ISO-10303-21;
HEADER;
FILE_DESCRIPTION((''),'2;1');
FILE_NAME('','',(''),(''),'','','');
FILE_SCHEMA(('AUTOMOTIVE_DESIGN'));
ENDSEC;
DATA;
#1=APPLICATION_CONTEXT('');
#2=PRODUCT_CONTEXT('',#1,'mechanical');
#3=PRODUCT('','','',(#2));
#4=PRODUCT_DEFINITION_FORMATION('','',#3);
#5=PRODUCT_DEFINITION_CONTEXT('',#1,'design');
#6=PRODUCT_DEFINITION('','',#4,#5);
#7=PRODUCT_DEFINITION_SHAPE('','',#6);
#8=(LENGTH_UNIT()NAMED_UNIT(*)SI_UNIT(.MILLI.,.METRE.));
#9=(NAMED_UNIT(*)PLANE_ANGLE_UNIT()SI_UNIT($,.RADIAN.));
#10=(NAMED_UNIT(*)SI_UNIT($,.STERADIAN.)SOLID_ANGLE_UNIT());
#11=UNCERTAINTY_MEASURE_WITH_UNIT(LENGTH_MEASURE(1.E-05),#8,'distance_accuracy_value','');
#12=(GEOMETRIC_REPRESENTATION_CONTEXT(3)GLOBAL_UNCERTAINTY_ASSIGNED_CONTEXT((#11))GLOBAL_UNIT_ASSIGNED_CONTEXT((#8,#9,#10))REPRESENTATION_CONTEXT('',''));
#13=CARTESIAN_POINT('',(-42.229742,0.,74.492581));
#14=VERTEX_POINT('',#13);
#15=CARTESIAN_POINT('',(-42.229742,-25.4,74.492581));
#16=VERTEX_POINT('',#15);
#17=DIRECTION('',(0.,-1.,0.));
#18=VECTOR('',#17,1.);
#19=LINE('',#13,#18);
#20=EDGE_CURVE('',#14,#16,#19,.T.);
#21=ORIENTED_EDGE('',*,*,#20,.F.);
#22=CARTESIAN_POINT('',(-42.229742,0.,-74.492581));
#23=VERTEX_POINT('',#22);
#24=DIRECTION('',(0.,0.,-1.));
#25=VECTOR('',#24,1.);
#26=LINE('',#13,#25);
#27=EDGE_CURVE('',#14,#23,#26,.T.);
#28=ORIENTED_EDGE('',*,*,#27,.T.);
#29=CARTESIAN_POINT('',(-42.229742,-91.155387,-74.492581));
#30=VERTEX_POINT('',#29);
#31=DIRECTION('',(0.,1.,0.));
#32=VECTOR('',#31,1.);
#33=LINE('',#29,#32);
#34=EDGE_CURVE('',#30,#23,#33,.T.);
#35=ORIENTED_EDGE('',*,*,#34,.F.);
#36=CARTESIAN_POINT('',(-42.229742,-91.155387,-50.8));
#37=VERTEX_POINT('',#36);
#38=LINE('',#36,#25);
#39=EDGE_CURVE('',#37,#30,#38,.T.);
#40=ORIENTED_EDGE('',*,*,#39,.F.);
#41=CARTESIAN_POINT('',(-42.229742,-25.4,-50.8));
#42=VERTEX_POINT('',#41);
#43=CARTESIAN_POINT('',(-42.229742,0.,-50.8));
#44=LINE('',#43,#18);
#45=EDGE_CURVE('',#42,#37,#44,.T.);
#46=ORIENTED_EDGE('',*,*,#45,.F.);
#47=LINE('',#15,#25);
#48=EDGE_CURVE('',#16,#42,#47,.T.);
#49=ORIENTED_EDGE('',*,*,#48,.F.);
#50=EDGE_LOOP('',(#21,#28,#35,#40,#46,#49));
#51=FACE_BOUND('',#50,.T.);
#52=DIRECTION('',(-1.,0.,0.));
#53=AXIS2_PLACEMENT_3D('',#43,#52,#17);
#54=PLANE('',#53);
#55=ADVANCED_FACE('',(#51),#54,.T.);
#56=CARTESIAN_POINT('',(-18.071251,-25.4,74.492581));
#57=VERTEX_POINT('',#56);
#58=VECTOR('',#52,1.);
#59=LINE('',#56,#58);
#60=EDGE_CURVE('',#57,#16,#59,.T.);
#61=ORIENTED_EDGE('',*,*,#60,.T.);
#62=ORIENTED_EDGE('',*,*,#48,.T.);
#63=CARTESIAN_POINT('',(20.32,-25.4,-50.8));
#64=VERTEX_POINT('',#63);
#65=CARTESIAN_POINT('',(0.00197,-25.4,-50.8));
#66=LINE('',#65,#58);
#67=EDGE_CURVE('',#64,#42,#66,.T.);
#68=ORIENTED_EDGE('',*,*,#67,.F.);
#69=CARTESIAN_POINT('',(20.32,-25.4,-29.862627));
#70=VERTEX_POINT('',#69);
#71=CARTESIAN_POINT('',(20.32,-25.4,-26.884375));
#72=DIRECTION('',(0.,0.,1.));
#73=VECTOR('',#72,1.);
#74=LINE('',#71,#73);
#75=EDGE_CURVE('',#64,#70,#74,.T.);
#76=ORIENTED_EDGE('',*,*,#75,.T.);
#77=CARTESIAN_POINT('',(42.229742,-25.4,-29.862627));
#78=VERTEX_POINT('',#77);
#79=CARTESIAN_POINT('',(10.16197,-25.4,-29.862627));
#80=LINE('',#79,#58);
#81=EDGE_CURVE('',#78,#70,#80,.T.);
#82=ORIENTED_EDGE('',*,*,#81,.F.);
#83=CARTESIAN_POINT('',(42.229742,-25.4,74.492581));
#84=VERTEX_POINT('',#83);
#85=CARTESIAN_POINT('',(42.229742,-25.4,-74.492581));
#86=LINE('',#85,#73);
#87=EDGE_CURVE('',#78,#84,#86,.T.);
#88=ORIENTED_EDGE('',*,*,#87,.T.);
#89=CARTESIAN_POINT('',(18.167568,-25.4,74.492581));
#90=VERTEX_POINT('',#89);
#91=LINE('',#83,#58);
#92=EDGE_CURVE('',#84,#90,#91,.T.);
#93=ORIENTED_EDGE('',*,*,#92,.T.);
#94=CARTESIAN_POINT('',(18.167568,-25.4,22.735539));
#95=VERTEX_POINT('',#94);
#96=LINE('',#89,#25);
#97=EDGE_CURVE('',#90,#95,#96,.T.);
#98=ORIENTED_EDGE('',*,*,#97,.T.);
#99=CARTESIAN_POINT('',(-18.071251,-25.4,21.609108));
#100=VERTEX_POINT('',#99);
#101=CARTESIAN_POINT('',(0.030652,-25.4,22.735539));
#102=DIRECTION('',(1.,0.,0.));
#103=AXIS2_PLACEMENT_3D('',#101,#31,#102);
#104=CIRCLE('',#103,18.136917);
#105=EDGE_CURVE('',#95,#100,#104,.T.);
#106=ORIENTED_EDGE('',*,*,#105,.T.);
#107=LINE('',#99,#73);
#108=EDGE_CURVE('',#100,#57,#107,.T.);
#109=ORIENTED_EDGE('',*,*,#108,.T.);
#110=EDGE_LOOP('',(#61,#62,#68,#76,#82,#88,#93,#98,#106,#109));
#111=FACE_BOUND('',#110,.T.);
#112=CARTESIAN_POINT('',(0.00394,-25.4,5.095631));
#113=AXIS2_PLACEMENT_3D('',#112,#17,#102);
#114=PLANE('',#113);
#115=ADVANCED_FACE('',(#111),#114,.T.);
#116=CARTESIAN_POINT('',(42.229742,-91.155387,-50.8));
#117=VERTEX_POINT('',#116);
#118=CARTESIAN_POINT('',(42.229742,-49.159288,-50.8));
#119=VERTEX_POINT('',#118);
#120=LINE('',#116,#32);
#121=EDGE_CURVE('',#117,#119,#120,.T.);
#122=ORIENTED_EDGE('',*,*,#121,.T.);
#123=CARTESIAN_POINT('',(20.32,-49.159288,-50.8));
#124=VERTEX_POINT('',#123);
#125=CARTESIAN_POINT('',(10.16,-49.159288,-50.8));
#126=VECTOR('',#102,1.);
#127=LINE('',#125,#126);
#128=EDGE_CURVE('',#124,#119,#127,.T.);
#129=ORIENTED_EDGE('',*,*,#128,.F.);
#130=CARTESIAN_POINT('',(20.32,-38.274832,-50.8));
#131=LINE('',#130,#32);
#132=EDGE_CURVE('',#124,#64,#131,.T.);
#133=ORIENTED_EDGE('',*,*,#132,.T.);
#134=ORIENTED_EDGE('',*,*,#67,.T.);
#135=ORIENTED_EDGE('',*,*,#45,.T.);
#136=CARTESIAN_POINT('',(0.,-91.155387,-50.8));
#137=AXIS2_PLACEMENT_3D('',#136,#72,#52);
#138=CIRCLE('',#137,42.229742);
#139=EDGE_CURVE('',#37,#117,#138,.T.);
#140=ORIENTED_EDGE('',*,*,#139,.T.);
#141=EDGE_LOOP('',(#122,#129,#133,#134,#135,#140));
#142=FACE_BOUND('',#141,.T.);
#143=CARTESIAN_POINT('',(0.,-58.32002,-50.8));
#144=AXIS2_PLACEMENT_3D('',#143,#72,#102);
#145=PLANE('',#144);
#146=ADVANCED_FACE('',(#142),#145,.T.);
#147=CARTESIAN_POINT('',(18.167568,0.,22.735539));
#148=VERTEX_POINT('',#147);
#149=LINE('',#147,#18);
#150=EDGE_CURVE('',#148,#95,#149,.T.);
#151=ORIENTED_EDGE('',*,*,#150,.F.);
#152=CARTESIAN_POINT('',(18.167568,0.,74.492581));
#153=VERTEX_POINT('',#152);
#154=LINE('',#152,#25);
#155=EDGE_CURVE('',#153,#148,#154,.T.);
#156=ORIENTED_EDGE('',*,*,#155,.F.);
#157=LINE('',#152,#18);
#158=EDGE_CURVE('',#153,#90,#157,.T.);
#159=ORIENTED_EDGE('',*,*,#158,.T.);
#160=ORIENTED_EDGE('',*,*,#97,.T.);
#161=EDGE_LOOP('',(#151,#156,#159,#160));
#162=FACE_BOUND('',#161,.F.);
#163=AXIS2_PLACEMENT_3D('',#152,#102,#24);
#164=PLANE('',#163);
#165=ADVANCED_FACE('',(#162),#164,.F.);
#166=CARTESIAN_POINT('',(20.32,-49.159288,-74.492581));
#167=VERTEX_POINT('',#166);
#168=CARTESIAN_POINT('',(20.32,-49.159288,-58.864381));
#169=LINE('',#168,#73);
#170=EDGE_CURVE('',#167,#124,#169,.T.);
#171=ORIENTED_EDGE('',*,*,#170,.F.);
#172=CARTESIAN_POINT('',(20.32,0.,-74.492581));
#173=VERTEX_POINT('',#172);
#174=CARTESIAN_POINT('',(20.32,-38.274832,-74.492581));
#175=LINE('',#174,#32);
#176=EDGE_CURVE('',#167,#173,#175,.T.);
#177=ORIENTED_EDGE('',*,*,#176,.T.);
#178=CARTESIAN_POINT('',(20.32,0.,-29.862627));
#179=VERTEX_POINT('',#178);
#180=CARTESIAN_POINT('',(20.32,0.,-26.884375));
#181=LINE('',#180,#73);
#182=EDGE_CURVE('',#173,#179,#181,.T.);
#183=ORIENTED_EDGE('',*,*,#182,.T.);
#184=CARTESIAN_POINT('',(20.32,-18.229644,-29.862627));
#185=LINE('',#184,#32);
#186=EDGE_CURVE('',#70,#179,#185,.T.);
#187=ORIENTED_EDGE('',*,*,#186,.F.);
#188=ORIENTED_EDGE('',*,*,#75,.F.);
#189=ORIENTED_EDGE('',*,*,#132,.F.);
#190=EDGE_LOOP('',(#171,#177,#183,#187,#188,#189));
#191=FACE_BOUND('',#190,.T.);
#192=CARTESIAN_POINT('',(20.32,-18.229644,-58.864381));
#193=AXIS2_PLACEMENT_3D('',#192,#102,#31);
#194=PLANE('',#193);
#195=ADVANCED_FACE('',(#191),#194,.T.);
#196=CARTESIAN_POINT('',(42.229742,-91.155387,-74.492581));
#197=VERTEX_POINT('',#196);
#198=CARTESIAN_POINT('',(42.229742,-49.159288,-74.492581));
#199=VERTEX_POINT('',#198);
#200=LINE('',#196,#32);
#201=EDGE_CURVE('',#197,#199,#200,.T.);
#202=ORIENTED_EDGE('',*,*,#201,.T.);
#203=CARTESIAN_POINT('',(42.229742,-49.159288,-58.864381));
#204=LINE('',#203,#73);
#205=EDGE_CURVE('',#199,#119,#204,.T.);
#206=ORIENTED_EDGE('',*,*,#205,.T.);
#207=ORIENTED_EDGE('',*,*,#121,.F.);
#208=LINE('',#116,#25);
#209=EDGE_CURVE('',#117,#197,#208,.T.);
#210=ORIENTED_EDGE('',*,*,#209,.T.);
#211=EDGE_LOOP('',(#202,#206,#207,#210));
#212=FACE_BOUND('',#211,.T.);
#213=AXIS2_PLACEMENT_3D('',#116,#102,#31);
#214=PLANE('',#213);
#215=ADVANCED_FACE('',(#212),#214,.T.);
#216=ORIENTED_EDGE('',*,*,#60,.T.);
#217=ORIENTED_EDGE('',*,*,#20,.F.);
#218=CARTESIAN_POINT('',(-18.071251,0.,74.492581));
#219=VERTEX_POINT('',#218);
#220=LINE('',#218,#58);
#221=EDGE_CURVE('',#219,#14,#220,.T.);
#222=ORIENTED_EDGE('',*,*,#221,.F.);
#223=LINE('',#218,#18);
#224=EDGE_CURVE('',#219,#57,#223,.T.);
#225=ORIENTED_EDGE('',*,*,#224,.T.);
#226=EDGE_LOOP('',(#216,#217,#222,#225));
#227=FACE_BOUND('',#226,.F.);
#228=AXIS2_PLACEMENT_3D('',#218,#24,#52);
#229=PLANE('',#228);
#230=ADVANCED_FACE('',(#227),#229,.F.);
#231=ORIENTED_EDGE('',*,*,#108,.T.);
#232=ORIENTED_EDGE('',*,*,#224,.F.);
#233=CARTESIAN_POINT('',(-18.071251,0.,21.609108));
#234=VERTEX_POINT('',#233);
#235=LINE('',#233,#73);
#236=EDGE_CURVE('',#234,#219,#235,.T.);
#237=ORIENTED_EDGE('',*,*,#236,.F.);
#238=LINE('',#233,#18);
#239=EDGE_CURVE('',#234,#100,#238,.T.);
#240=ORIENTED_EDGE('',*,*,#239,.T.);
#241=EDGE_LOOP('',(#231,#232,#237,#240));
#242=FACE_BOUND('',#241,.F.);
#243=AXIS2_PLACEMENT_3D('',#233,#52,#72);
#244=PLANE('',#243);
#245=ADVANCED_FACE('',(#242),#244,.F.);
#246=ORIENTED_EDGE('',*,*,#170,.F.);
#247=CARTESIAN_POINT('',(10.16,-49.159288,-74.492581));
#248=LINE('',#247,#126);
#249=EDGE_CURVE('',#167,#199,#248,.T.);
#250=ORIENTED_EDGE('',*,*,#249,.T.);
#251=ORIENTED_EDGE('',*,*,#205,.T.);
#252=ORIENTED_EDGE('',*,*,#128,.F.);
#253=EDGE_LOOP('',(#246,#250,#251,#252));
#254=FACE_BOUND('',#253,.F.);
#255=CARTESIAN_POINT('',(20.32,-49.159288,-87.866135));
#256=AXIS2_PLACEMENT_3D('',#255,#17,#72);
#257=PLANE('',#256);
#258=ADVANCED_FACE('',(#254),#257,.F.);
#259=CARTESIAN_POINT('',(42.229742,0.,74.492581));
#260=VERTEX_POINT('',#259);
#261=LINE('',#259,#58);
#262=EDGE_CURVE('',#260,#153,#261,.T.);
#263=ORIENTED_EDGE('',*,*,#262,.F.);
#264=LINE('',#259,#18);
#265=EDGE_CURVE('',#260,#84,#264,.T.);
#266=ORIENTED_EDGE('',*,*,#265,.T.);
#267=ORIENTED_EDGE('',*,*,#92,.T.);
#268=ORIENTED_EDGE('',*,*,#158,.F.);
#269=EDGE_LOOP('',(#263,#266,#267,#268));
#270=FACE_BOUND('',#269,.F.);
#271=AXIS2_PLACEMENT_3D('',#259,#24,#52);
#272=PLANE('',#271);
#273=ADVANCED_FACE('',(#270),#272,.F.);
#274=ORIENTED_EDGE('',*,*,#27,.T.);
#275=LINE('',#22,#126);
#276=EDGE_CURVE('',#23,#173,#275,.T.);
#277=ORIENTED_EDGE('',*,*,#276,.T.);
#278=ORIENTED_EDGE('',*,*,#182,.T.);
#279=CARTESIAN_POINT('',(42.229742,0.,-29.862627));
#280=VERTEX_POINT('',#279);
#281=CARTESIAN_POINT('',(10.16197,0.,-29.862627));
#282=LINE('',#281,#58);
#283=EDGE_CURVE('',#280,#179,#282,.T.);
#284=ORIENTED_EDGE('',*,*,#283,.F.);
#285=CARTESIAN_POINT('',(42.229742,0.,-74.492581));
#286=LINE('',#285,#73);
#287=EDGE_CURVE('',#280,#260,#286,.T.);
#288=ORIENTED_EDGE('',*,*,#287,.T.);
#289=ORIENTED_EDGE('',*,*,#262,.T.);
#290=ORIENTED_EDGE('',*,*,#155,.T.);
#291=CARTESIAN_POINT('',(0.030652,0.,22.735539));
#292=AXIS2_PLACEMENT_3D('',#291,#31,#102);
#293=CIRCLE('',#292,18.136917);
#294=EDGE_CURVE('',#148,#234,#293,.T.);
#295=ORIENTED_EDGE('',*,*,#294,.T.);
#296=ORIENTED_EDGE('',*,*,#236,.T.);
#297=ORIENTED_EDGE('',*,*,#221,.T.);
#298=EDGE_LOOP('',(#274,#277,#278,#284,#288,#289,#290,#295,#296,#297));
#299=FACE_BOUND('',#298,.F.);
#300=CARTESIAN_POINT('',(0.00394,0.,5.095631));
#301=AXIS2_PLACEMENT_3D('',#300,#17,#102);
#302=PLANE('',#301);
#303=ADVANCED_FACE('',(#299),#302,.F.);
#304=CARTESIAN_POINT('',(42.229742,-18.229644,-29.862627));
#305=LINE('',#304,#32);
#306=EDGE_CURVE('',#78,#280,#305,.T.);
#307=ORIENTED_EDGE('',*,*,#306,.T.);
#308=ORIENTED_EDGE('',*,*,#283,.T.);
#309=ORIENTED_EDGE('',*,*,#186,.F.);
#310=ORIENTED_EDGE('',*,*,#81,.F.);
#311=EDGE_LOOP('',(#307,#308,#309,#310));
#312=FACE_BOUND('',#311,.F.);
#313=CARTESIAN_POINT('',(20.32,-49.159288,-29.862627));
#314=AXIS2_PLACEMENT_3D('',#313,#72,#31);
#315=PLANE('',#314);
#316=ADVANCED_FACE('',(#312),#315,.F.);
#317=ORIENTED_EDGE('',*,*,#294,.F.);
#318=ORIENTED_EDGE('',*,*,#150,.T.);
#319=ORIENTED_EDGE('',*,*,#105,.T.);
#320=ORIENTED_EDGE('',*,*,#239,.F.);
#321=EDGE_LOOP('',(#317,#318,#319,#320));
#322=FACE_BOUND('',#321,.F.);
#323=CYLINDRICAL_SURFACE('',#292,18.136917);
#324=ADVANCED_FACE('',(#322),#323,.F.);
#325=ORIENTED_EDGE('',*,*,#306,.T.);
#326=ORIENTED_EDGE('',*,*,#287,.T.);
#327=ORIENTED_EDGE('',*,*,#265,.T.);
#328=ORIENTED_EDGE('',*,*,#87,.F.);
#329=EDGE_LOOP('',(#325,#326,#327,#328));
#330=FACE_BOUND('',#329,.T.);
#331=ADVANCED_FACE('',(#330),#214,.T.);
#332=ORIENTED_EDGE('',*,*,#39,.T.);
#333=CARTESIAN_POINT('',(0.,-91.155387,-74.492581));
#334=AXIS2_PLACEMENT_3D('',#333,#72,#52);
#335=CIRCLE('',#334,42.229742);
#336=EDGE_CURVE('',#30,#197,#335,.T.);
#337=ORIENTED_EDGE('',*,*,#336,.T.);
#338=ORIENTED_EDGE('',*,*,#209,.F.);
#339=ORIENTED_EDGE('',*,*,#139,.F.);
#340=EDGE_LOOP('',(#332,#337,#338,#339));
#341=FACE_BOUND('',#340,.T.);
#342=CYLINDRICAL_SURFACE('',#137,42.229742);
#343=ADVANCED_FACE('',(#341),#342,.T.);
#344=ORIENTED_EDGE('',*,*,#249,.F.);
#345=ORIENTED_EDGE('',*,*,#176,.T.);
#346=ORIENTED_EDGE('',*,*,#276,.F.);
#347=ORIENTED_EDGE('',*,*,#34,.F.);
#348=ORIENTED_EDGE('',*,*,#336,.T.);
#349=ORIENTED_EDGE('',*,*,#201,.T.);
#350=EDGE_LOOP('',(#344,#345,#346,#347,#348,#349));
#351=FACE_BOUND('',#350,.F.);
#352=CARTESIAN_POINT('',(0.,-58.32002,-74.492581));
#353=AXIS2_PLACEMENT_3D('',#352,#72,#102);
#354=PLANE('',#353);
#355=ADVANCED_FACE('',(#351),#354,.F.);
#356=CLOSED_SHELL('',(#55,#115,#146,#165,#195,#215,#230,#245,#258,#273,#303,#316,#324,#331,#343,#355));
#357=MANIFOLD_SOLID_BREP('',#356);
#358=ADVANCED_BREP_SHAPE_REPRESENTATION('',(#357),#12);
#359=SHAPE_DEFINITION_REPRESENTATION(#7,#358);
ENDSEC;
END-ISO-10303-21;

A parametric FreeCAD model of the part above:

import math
import FreeCAD as App
import Part
import Sketcher
Q = App.Units.Quantity


def add_polygon(sketch, points):
    """Adds a closed chain of lines whose ends are joined by coincident constraints."""
    first, n = sketch.GeometryCount, len(points)
    for a, b in zip(points, points[1:] + points[:1]):
        sketch.addGeometry(Part.LineSegment(App.Vector(*a, 0), App.Vector(*b, 0)), False)
    for i in range(n):
        sketch.addConstraint(Sketcher.Constraint("Coincident", first + i, 2, first + (i + 1) % n, 1))

doc = App.newDocument("Part")
body = doc.addObject("PartDesign::Body", "Body")

# Sketch on XZ plane
sketch1 = doc.addObject("Sketcher::SketchObject", "Sketch")
body.addObject(sketch1)
sketch1.AttachmentSupport = (doc.XZ_Plane, [""])
sketch1.MapMode = "FlatFace"
sketch1.addGeometry([
    Part.LineSegment(App.Vector(42.229742, -74.492581, 0), App.Vector(42.229742, 74.492581, 0)),  # 0
    Part.LineSegment(App.Vector(42.229742, 74.492581, 0), App.Vector(18.167568, 74.492581, 0)),  # 1
    Part.LineSegment(App.Vector(18.167568, 74.492581, 0), App.Vector(18.167568, 22.735539, 0)),  # 2
    Part.ArcOfCircle(Part.Circle(App.Vector(0.030652, 22.735539, 0), App.Vector(0, 0, 1), 18.136917), math.radians(-176.439234), math.radians(0)),  # 3
    Part.LineSegment(App.Vector(-18.071251, 21.609108, 0), App.Vector(-18.071251, 74.492581, 0)),  # 4
    Part.LineSegment(App.Vector(-18.071251, 74.492581, 0), App.Vector(-42.229742, 74.492581, 0)),  # 5
    Part.LineSegment(App.Vector(-42.229742, 74.492581, 0), App.Vector(-42.229742, -74.492581, 0)),  # 6
    Part.LineSegment(App.Vector(-42.229742, -74.492581, 0), App.Vector(42.229742, -74.492581, 0)),  # 7
], False)
sketch1.addConstraint([
    Sketcher.Constraint("Coincident", 0, 2, 1, 1),
    Sketcher.Constraint("Coincident", 1, 2, 2, 1),
    Sketcher.Constraint("Tangent", 2, 2, 3, 2),
    Sketcher.Constraint("Coincident", 3, 1, 4, 1),
    Sketcher.Constraint("Coincident", 4, 2, 5, 1),
    Sketcher.Constraint("Coincident", 5, 2, 6, 1),
    Sketcher.Constraint("Coincident", 6, 2, 7, 1),
    Sketcher.Constraint("Coincident", 7, 2, 0, 1),
    Sketcher.Constraint("Vertical", 0),
    Sketcher.Constraint("Horizontal", 1),
    Sketcher.Constraint("Vertical", 2),
    Sketcher.Constraint("Vertical", 4),
    Sketcher.Constraint("Horizontal", 5),
    Sketcher.Constraint("Vertical", 6),
    Sketcher.Constraint("Horizontal", 7),
    Sketcher.Constraint("Symmetric", 0, 2, 6, 2, -1, 1),
    Sketcher.Constraint("Horizontal", 1, 2, 4, 2),
    Sketcher.Constraint("DistanceY", -1, 1, 3, 3, Q("0.8951 in")),
    Sketcher.Constraint("Radius", 3, 18.136917),
    Sketcher.Constraint("DistanceX", 5, 2, 5, 1, 24.15849),
    Sketcher.Constraint("DistanceY", 2, 2, 2, 1, 51.757042),
    Sketcher.Constraint("DistanceX", 1, 2, 1, 1, 24.062174),
    Sketcher.Constraint("DistanceX", 7, 1, 7, 2, 84.459484),
])
pad1 = doc.addObject("PartDesign::Pad", "Pad")
body.addObject(pad1)
pad1.Profile = sketch1
pad1.Length = Q("1 in")

# Sketch on XY plane
sketch2 = doc.addObject("Sketcher::SketchObject", "Sketch001")
body.addObject(sketch2)
sketch2.AttachmentSupport = (doc.XY_Plane, [""])
sketch2.MapMode = "FlatFace"
sketch2.AttachmentOffset = App.Placement(App.Vector(0, 0, -2 * 25.4), App.Rotation())
sketch2.addGeometry([
    Part.LineSegment(App.Vector(42.229742, -91.155387, 0), App.Vector(42.229742, 0, 0)),
    Part.LineSegment(App.Vector(42.229742, 0, 0), App.Vector(-42.229742, 0, 0)),
    Part.LineSegment(App.Vector(-42.229742, 0, 0), App.Vector(-42.229742, -91.155387, 0)),
    Part.ArcOfCircle(Part.Circle(App.Vector(0, -91.155387, 0), App.Vector(0, 0, 1), 42.229742), math.radians(180), math.radians(360)),
], False)
sketch2.addConstraint([
    Sketcher.Constraint("Coincident", 0, 2, 1, 1),
    Sketcher.Constraint("Coincident", 1, 2, 2, 1),
    Sketcher.Constraint("Tangent", 2, 2, 3, 1),
    Sketcher.Constraint("Tangent", 3, 2, 0, 1),
    Sketcher.Constraint("Vertical", 0),
    Sketcher.Constraint("Horizontal", 1),
    Sketcher.Constraint("Vertical", 2),
    Sketcher.Constraint("Symmetric", 0, 2, 1, 2, -1, 1),
    Sketcher.Constraint("Radius", 3, 42.229742),
    Sketcher.Constraint("DistanceY", 0, 1, 0, 2, 91.155387),
])
pad2 = doc.addObject("PartDesign::Pad", "Pad001")
body.addObject(pad2)
pad2.Profile = sketch2
pad2.Length = 23.692581
pad2.Reversed = True

# Sketch on YZ plane
sketch3 = doc.addObject("Sketcher::SketchObject", "Sketch002")
body.addObject(sketch3)
sketch3.AttachmentSupport = (doc.YZ_Plane, [""])
sketch3.MapMode = "FlatFace"
sketch3.AttachmentOffset = App.Placement(App.Vector(0, 0, 0.8 * 25.4), App.Rotation())
add_polygon(sketch3, [(-49.159288, -29.862627), (-49.159288, -87.866135), (12.700001, -87.866135), (12.700001, -29.862627)])  # lines 0-3
sketch3.addConstraint([
    Sketcher.Constraint("Vertical", 0),
    Sketcher.Constraint("Horizontal", 1),
    Sketcher.Constraint("Vertical", 2),
    Sketcher.Constraint("Horizontal", 3),
    Sketcher.Constraint("DistanceX", -1, 1, 1, 2, Q("0.5 in")),
    Sketcher.Constraint("DistanceX", 1, 1, 1, 2, 61.859289),
    Sketcher.Constraint("DistanceY", 0, 2, 0, 1, 58.003508),
    Sketcher.Constraint("DistanceY", 0, 2, -1, 1, 87.866135),
])
pocket1 = doc.addObject("PartDesign::Pocket", "Pocket")
body.addObject(pocket1)
pocket1.Profile = sketch3
pocket1.Length = 21.909742
pocket1.Reversed = True

doc.recompute()
